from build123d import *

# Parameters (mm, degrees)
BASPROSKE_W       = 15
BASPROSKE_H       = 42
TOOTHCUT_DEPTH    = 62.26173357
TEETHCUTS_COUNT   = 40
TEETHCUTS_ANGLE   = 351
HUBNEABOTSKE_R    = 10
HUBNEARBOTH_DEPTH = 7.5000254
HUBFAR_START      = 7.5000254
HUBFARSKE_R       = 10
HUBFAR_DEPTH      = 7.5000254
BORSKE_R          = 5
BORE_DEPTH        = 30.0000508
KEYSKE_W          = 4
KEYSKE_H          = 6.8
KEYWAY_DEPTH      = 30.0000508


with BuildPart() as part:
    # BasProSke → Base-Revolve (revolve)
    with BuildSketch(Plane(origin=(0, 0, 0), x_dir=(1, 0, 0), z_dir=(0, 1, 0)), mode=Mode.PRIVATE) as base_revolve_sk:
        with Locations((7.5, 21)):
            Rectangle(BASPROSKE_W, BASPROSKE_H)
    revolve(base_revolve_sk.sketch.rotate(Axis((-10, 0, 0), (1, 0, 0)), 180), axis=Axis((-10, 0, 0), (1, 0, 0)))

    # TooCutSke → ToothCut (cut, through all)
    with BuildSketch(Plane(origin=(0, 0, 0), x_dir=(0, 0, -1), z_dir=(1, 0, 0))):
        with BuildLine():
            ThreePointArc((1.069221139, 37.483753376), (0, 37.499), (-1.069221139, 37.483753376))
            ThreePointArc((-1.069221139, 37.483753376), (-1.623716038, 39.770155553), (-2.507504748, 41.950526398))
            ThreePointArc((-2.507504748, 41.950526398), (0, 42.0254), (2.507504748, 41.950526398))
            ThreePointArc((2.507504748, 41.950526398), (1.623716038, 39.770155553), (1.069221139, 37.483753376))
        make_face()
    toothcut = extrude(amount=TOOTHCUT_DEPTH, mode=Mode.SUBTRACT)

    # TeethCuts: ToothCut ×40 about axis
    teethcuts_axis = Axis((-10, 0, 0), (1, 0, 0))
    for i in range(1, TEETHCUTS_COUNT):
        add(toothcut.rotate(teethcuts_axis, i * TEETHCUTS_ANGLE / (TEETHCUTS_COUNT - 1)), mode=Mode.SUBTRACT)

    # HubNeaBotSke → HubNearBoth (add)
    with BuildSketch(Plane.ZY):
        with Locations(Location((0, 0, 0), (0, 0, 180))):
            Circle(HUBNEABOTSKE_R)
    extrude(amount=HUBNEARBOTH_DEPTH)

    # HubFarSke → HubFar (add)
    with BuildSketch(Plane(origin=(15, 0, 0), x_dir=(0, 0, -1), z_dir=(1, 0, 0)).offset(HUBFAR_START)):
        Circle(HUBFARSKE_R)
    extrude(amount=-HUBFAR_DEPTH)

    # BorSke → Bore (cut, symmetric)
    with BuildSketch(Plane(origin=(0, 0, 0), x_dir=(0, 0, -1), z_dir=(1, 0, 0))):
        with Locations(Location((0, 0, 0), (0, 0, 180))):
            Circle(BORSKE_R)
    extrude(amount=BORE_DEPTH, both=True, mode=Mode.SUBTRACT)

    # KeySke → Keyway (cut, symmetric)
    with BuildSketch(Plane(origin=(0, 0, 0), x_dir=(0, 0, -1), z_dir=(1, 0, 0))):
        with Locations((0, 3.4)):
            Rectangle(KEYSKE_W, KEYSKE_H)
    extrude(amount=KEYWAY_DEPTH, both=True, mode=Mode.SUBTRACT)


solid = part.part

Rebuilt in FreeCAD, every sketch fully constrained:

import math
import FreeCAD as App
import Part
import Sketcher

V = App.Vector


def add_polygon(sketch, points):
    """Adds a closed chain of lines whose ends are joined by coincident constraints."""
    first, n = sketch.GeometryCount, len(points)
    for a, b in zip(points, points[1:] + points[:1]):
        sketch.addGeometry(Part.LineSegment(App.Vector(*a, 0), App.Vector(*b, 0)), False)
    for i in range(n):
        sketch.addConstraint(Sketcher.Constraint("Coincident", first + i, 2, first + (i + 1) % n, 1))

doc = App.newDocument("Part")
body = doc.addObject("PartDesign::Body", "Body")

# Sketch on XZ plane
sketch1 = body.newObject("Sketcher::SketchObject", "Sketch")
sketch1.AttachmentSupport = (doc.getObject("XZ_Plane"), [""])
sketch1.MapMode = "FlatFace"
add_polygon(sketch1, [(0, -42), (0, 0), (15, 0), (15, -42)])  # lines 0-3
sketch1.addConstraint(Sketcher.Constraint("Vertical", 0))
sketch1.addConstraint(Sketcher.Constraint("Horizontal", 1))
sketch1.addConstraint(Sketcher.Constraint("Vertical", 2))
sketch1.addConstraint(Sketcher.Constraint("Horizontal", 3))
sketch1.addConstraint(Sketcher.Constraint("Coincident", 0, 2, -1, 1))
sketch1.addConstraint(Sketcher.Constraint("DistanceX", 1, 1, 1, 2, 15.0))
sketch1.addConstraint(Sketcher.Constraint("DistanceY", 0, 1, 0, 2, 42.0))
revolution = body.newObject("PartDesign::Revolution", "Revolution")
revolution.Profile = sketch1
revolution.ReferenceAxis = (sketch1, ["H_Axis"])
revolution.Angle = 360

# Sketch on YZ plane
sketch2 = body.newObject("Sketcher::SketchObject", "Sketch001")
sketch2.AttachmentSupport = (doc.getObject("YZ_Plane"), [""])
sketch2.MapMode = "FlatFace"
sketch2.addGeometry(Part.ArcOfCircle(Part.Circle(V(0, 0, 0), V(0, 0, 1), 37.499), math.radians(-1.633915), math.radians(1.633915)), False)
sketch2.addGeometry(Part.ArcOfCircle(Part.Circle(V(34.866175, -16.853653, 0), V(0, 0, 1), 16), math.radians(63.719122), math.radians(80.584163)), False)
sketch2.addGeometry(Part.ArcOfCircle(Part.Circle(V(0, 0, 0), V(0, 0, 1), 42.0254), math.radians(-3.420665), math.radians(3.420665)), False)
sketch2.addGeometry(Part.ArcOfCircle(Part.Circle(V(34.866175, 16.853653, 0), V(0, 0, 1), 16), math.radians(-80.584163), math.radians(-63.719122)), False)
sketch2.addConstraint(Sketcher.Constraint("Coincident", 0, 1, 1, 2))
sketch2.addConstraint(Sketcher.Constraint("Coincident", 1, 1, 2, 1))
sketch2.addConstraint(Sketcher.Constraint("Coincident", 2, 2, 3, 2))
sketch2.addConstraint(Sketcher.Constraint("Coincident", 3, 1, 0, 2))
sketch2.addConstraint(Sketcher.Constraint("Coincident", 0, 3, -1, 1))
sketch2.addConstraint(Sketcher.Constraint("Coincident", 2, 3, -1, 1))
sketch2.addConstraint(Sketcher.Constraint("Equal", 1, 3))
sketch2.addConstraint(Sketcher.Constraint("Symmetric", 1, 3, 3, 3, -1))
sketch2.addConstraint(Sketcher.Constraint("Radius", 1, 16.0))
sketch2.addConstraint(Sketcher.Constraint("Radius", 0, 37.499))
sketch2.addConstraint(Sketcher.Constraint("Radius", 2, 42.0254))
sketch2.addConstraint(Sketcher.Constraint("DistanceY", 0, 1, -1, 1, 1.069221))
sketch2.addConstraint(Sketcher.Constraint("DistanceX", 1, 3, 0, 1, 2.617578))
pocket1 = body.newObject("PartDesign::Pocket", "Pocket")
pocket1.Profile = sketch2
pocket1.Type = "ThroughAll"
pocket1.Reversed = True
doc.recompute()

polarpattern = body.newObject("PartDesign::PolarPattern", "PolarPattern")
polarpattern.Originals = [pocket1]
polarpattern.Axis = (doc.getObject("X_Axis"), [""])
polarpattern.Angle = 360
polarpattern.Occurrences = 40
body.Tip = polarpattern

# Sketch on YZ plane
sketch3 = body.newObject("Sketcher::SketchObject", "Sketch002")
sketch3.AttachmentSupport = (doc.getObject("YZ_Plane"), [""])
sketch3.MapMode = "FlatFace"
sketch3.addGeometry(Part.Circle(V(0, 0, 0), V(0, 0, 1), 10), False)
sketch3.addConstraint(Sketcher.Constraint("Coincident", 0, 3, -1, 1))
sketch3.addConstraint(Sketcher.Constraint("Diameter", 0, 20.0))
pad1 = body.newObject("PartDesign::Pad", "Pad")
pad1.Profile = sketch3
pad1.Length = 7.500025
pad1.Reversed = True

# Sketch on YZ plane
sketch4 = body.newObject("Sketcher::SketchObject", "Sketch003")
sketch4.AttachmentSupport = (doc.getObject("YZ_Plane"), [""])
sketch4.MapMode = "FlatFace"
sketch4.AttachmentOffset = App.Placement(V(0, 0, 22.500025), App.Rotation())
sketch4.addGeometry(Part.Circle(V(0, 0, 0), V(0, 0, 1), 10), False)
sketch4.addConstraint(Sketcher.Constraint("Coincident", 0, 3, -1, 1))
sketch4.addConstraint(Sketcher.Constraint("Diameter", 0, 20.0))
pad2 = body.newObject("PartDesign::Pad", "Pad001")
pad2.Profile = sketch4
pad2.Length = 7.500025
pad2.Reversed = True

# Sketch on YZ plane
sketch5 = body.newObject("Sketcher::SketchObject", "Sketch004")
sketch5.AttachmentSupport = (doc.getObject("YZ_Plane"), [""])
sketch5.MapMode = "FlatFace"
sketch5.addGeometry(Part.Circle(V(0, 0, 0), V(0, 0, 1), 5), False)
sketch5.addConstraint(Sketcher.Constraint("Coincident", 0, 3, -1, 1))
sketch5.addConstraint(Sketcher.Constraint("Diameter", 0, 10.0))
pocket2 = body.newObject("PartDesign::Pocket", "Pocket001")
pocket2.Profile = sketch5
pocket2.Length = 60.000102
pocket2.Midplane = True

# Sketch on YZ plane
sketch6 = body.newObject("Sketcher::SketchObject", "Sketch005")
sketch6.AttachmentSupport = (doc.getObject("YZ_Plane"), [""])
sketch6.MapMode = "FlatFace"
add_polygon(sketch6, [(6.8, 2), (0, 2), (0, -2), (6.8, -2)])  # lines 0-3
sketch6.addConstraint(Sketcher.Constraint("Horizontal", 0))
sketch6.addConstraint(Sketcher.Constraint("Vertical", 1))
sketch6.addConstraint(Sketcher.Constraint("Horizontal", 2))
sketch6.addConstraint(Sketcher.Constraint("Vertical", 3))
sketch6.addConstraint(Sketcher.Constraint("Symmetric", 0, 2, 1, 2, -1, 1))
sketch6.addConstraint(Sketcher.Constraint("DistanceY", 1, 2, 1, 1, 4.0))
sketch6.addConstraint(Sketcher.Constraint("DistanceX", 0, 2, 0, 1, 6.8))
pocket3 = body.newObject("PartDesign::Pocket", "Pocket002")
pocket3.Profile = sketch6
pocket3.Length = 60.000102
pocket3.Midplane = True

doc.recompute()
